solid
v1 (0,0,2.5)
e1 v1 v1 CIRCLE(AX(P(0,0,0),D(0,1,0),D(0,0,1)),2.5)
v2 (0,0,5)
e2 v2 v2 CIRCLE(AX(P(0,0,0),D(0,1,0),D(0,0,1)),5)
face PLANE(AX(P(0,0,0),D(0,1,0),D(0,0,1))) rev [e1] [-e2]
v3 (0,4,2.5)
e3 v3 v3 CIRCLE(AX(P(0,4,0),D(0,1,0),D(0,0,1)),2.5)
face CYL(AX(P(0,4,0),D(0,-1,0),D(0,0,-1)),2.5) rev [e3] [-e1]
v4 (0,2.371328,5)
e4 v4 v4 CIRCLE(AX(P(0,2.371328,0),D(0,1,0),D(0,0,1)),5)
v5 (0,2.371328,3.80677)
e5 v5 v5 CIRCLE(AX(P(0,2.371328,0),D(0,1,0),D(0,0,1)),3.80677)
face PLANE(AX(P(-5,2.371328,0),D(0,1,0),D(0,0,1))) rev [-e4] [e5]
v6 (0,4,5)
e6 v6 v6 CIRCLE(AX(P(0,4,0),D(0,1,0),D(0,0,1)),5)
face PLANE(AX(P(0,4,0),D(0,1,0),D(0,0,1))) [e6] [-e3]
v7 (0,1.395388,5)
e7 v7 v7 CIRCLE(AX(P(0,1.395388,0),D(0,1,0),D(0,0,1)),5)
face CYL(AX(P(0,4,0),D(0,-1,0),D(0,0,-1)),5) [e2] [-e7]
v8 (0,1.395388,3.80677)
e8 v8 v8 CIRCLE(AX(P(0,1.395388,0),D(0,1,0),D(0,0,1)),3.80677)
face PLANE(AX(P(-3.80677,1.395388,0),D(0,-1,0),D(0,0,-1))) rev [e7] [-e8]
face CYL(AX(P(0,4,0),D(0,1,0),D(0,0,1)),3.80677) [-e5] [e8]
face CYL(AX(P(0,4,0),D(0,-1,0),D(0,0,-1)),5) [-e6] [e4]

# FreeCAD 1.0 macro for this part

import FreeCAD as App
import Part
import Sketcher
from FreeCAD import Vector


def add_polygon(sketch, points):
    """Adds a closed chain of lines whose ends are joined by coincident constraints."""
    first, n = sketch.GeometryCount, len(points)
    for a, b in zip(points, points[1:] + points[:1]):
        sketch.addGeometry(Part.LineSegment(App.Vector(*a, 0), App.Vector(*b, 0)), False)
    for i in range(n):
        sketch.addConstraint(Sketcher.Constraint("Coincident", first + i, 2, first + (i + 1) % n, 1))

doc = App.newDocument("Part")
params = doc.addObject("Spreadsheet::Sheet", "Params")
for row, (alias, value) in enumerate([
    ("sketch1_diameter", "10 mm"),
    ("sketch1_diameter2", "5 mm"),
    ("pad1_length", "4 mm"),
    ("groove_angle", "360 deg"),
], start=1):
    params.set(f"A{row}", alias)
    params.set(f"B{row}", "=" + value)
    params.setAlias(f"B{row}", alias)

body = doc.addObject("PartDesign::Body", "Body")

# Sketch on XZ plane
sketch1 = doc.addObject("Sketcher::SketchObject", "Sketch")
body.addObject(sketch1)
sketch1.AttachmentSupport = (doc.XZ_Plane, [""])
sketch1.MapMode = "FlatFace"
sketch1.addGeometry([
    Part.Circle(Vector(0, 0, 0), Vector(0, 0, 1), 5),
    Part.Circle(Vector(0, 0, 0), Vector(0, 0, 1), 2.5),
], False)
sketch1.addConstraint([
    Sketcher.Constraint("Coincident", 0, 3, -1, 1),
    Sketcher.Constraint("Coincident", 1, 3, -1, 1),
    Sketcher.Constraint("Diameter", 0, 10.0),
    Sketcher.Constraint("Diameter", 1, 5.0),
])
sketch1.setExpression("Constraints[2]", "Params.sketch1_diameter")
sketch1.setExpression("Constraints[3]", "Params.sketch1_diameter2")
pad1 = doc.addObject("PartDesign::Pad", "Pad")
body.addObject(pad1)
pad1.Profile = sketch1
pad1.setExpression("Length", "Params.pad1_length")
pad1.Reversed = True

# Sketch on XY plane
sketch2 = doc.addObject("Sketcher::SketchObject", "Sketch001")
body.addObject(sketch2)
sketch2.AttachmentSupport = (doc.XY_Plane, [""])
sketch2.MapMode = "FlatFace"
add_polygon(sketch2, [(-5, 2.4), (-5, 1.4), (-3.8, 1.4), (-3.8, 2.4)])  # lines 0-3
sketch2.addConstraint([
    Sketcher.Constraint("Vertical", 0),
    Sketcher.Constraint("Horizontal", 1),
    Sketcher.Constraint("Vertical", 2),
    Sketcher.Constraint("Horizontal", 3),
    Sketcher.Constraint("DistanceX", 0, 2, -1, 1, 5.0),
    Sketcher.Constraint("DistanceX", 1, 1, 1, 2, 1.19323),
    Sketcher.Constraint("DistanceY", 0, 2, 0, 1, 0.97594),
    Sketcher.Constraint("DistanceY", -1, 1, 0, 2, 1.395388),
])
groove = doc.addObject("PartDesign::Groove", "Groove")
body.addObject(groove)
groove.Profile = sketch2
groove.ReferenceAxis = (sketch2, ["V_Axis"])
groove.setExpression("Angle", "Params.groove_angle")

doc.recompute()
